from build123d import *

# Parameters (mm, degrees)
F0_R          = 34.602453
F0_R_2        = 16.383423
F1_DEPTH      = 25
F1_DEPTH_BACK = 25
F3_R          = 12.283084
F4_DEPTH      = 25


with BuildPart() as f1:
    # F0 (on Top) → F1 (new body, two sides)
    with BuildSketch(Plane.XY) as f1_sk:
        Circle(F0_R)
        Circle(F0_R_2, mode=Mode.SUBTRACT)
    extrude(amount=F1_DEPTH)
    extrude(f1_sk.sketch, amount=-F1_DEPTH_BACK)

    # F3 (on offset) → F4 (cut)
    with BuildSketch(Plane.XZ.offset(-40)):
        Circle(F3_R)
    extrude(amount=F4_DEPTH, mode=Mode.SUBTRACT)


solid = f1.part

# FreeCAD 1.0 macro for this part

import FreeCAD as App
import Part
import Sketcher

V = App.Vector
Q = App.Units.Quantity

doc = App.newDocument("Part")
body = doc.addObject("PartDesign::Body", "Body")

# Sketch on XY plane
sketch1 = body.newObject("Sketcher::SketchObject", "Sketch")
sketch1.AttachmentSupport = (doc.getObject("XY_Plane"), [""])
sketch1.MapMode = "FlatFace"
sketch1.addGeometry(Part.Circle(V(0, 0, 0), V(0, 0, 1), 35), False)
sketch1.addGeometry(Part.Circle(V(0, 0, 0), V(0, 0, 1), 16), False)
sketch1.addConstraint(Sketcher.Constraint("Coincident", 0, 3, -1, 1))
sketch1.addConstraint(Sketcher.Constraint("Coincident", 1, 3, -1, 1))
sketch1.addConstraint(Sketcher.Constraint("Diameter", 0, Q("69.204906 mm")))
sketch1.addConstraint(Sketcher.Constraint("Diameter", 1, Q("32.766846 mm")))
pad1 = body.newObject("PartDesign::Pad", "Pad")
pad1.Profile = sketch1
pad1.Type = "TwoLengths"
pad1.Length = 25
pad1.Length2 = 25

# Sketch on XZ plane
sketch2 = body.newObject("Sketcher::SketchObject", "Sketch001")
sketch2.AttachmentSupport = (doc.getObject("XZ_Plane"), [""])
sketch2.MapMode = "FlatFace"
sketch2.AttachmentOffset = App.Placement(V(0, 0, -40), App.Rotation())
sketch2.addGeometry(Part.Circle(V(0, 0, 0), V(0, 0, 1), 12), False)
sketch2.addConstraint(Sketcher.Constraint("Coincident", 0, 3, -1, 1))
sketch2.addConstraint(Sketcher.Constraint("Diameter", 0, Q("24.566168 mm")))
pocket1 = body.newObject("PartDesign::Pocket", "Pocket")
pocket1.Profile = sketch2
pocket1.Length = 25
pocket1.Reversed = True

doc.recompute()
